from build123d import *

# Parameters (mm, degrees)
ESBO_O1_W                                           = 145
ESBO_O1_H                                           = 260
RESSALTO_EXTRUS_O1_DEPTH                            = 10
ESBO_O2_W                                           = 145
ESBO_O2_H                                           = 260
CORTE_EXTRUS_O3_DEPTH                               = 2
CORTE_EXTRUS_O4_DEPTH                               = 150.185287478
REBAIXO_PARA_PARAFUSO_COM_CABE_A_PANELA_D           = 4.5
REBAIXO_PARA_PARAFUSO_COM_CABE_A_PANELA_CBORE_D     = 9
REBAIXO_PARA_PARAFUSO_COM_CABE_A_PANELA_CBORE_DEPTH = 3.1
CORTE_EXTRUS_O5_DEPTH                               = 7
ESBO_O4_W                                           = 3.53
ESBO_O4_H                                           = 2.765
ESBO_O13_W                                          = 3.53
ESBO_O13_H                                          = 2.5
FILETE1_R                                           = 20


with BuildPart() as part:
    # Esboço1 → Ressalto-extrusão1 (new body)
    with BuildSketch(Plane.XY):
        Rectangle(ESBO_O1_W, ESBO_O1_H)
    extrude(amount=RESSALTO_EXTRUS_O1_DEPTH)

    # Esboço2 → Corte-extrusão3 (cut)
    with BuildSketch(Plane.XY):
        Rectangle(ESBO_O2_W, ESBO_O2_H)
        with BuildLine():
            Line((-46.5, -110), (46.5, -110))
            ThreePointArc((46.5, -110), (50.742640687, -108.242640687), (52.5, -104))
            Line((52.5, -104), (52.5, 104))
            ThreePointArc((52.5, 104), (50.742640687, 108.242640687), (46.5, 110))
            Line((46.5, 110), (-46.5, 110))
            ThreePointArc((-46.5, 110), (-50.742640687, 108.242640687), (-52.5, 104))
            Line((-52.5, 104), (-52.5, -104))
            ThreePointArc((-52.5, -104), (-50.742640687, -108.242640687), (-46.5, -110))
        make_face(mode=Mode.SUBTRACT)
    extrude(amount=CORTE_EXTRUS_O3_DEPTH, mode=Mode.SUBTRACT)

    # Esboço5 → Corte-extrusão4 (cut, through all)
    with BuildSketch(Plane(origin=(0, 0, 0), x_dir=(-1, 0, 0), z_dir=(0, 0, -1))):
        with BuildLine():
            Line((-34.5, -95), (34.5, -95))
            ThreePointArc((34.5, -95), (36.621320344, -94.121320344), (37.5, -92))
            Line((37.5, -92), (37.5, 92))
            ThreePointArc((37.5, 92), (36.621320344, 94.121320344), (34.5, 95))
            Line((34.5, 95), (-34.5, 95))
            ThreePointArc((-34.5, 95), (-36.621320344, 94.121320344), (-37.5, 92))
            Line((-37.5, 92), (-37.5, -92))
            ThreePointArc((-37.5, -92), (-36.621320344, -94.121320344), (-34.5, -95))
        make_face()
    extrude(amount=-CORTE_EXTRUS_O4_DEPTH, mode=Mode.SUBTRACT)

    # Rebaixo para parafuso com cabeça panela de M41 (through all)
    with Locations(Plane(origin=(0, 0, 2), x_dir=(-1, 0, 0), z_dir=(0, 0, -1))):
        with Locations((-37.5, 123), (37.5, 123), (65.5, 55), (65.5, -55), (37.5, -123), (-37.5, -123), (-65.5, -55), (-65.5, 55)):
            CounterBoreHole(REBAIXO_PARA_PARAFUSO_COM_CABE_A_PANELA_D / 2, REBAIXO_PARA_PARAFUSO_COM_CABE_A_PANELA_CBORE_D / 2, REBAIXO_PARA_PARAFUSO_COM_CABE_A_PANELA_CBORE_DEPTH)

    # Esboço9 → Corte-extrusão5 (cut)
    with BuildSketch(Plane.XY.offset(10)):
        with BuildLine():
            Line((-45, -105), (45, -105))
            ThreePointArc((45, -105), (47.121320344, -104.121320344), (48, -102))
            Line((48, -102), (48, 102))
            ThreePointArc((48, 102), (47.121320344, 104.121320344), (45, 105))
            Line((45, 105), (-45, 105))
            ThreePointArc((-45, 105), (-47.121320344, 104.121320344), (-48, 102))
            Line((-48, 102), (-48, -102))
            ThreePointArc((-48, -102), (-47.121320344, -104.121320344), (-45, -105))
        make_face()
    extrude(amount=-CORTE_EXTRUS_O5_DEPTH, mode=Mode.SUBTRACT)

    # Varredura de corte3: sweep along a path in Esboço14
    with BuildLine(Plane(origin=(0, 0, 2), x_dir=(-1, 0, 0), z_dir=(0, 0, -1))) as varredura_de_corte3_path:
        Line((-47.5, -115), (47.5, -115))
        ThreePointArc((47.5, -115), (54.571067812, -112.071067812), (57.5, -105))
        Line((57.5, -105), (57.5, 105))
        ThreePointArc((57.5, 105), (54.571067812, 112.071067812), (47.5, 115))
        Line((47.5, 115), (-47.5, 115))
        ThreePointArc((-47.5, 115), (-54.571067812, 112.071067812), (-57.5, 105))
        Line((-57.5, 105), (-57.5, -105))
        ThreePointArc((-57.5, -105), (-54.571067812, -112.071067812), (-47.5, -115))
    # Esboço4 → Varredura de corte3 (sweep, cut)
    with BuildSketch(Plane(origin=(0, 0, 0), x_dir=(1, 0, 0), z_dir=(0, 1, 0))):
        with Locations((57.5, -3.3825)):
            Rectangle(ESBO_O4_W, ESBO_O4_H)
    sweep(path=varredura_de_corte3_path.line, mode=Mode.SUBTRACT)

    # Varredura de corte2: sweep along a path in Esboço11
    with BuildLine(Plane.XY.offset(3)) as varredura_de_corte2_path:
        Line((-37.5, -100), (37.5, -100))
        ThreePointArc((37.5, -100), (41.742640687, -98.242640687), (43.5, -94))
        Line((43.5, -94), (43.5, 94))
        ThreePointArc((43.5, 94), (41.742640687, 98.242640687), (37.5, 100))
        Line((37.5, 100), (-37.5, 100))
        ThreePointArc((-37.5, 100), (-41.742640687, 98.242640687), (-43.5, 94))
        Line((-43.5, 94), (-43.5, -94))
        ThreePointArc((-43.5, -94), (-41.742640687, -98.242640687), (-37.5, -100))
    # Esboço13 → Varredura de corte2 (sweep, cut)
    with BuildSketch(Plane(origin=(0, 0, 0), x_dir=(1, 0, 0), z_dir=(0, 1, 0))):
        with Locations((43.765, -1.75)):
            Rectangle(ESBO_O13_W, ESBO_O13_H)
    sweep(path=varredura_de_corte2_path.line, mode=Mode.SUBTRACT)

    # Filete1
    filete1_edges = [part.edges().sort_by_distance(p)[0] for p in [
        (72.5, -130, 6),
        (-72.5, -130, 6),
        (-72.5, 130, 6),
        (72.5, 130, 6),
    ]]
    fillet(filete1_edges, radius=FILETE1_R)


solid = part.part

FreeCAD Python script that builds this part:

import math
import FreeCAD as App
import Part
import Sketcher

V = App.Vector


def edges_at(feature, points):
    """Names of the edges that pass closest to the given points."""
    edges = feature.Shape.Edges
    near = lambda p: min(range(len(edges)), key=lambda i: edges[i].distToShape(Part.Vertex(*p))[0])
    return sorted({f"Edge{near(p) + 1}" for p in points})

doc = App.newDocument("Part")
body = doc.addObject("PartDesign::Body", "Body")

# Sketch on XY plane
sketch1 = body.newObject("Sketcher::SketchObject", "Sketch")
sketch1.AttachmentSupport = (doc.getObject("XY_Plane"), [""])
sketch1.MapMode = "FlatFace"
sketch1.addGeometry(Part.LineSegment(V(-72.5, 130, 0), V(-72.5, -130, 0)), False)
sketch1.addGeometry(Part.LineSegment(V(-72.5, -130, 0), V(72.5, -130, 0)), False)
sketch1.addGeometry(Part.LineSegment(V(72.5, -130, 0), V(72.5, 130, 0)), False)
sketch1.addGeometry(Part.LineSegment(V(72.5, 130, 0), V(-72.5, 130, 0)), False)
sketch1.addConstraint(Sketcher.Constraint("Coincident", 0, 2, 1, 1))
sketch1.addConstraint(Sketcher.Constraint("Coincident", 1, 2, 2, 1))
sketch1.addConstraint(Sketcher.Constraint("Coincident", 2, 2, 3, 1))
sketch1.addConstraint(Sketcher.Constraint("Coincident", 3, 2, 0, 1))
sketch1.addConstraint(Sketcher.Constraint("Vertical", 0))
sketch1.addConstraint(Sketcher.Constraint("Horizontal", 1))
sketch1.addConstraint(Sketcher.Constraint("Vertical", 2))
sketch1.addConstraint(Sketcher.Constraint("Horizontal", 3))
sketch1.addConstraint(Sketcher.Constraint("Symmetric", 0, 2, 2, 2, -1, 1))
sketch1.addConstraint(Sketcher.Constraint("DistanceX", 1, 1, 1, 2, 145.0))
sketch1.addConstraint(Sketcher.Constraint("DistanceY", 0, 2, 0, 1, 260.0))
pad1 = body.newObject("PartDesign::Pad", "Pad")
pad1.Profile = sketch1
pad1.Length = 10

# Sketch on XY plane
sketch2 = body.newObject("Sketcher::SketchObject", "Sketch001")
sketch2.AttachmentSupport = (doc.getObject("XY_Plane"), [""])
sketch2.MapMode = "FlatFace"
sketch2.addGeometry(Part.LineSegment(V(-72.5, 130, 0), V(-72.5, -130, 0)), False)
sketch2.addGeometry(Part.LineSegment(V(-72.5, -130, 0), V(72.5, -130, 0)), False)
sketch2.addGeometry(Part.LineSegment(V(72.5, -130, 0), V(72.5, 130, 0)), False)
sketch2.addGeometry(Part.LineSegment(V(72.5, 130, 0), V(-72.5, 130, 0)), False)
sketch2.addGeometry(Part.LineSegment(V(46.5, -110, 0), V(-46.5, -110, 0)), False)
sketch2.addGeometry(Part.ArcOfCircle(Part.Circle(V(-46.5, -104, 0), V(0, 0, 1), 6), math.radians(180), math.radians(270)), False)
sketch2.addGeometry(Part.LineSegment(V(-52.5, -104, 0), V(-52.5, 104, 0)), False)
sketch2.addGeometry(Part.ArcOfCircle(Part.Circle(V(-46.5, 104, 0), V(0, 0, 1), 6), math.radians(90), math.radians(180)), False)
sketch2.addGeometry(Part.LineSegment(V(-46.5, 110, 0), V(46.5, 110, 0)), False)
sketch2.addGeometry(Part.ArcOfCircle(Part.Circle(V(46.5, 104, 0), V(0, 0, 1), 6), math.radians(0), math.radians(90)), False)
sketch2.addGeometry(Part.LineSegment(V(52.5, 104, 0), V(52.5, -104, 0)), False)
sketch2.addGeometry(Part.ArcOfCircle(Part.Circle(V(46.5, -104, 0), V(0, 0, 1), 6), math.radians(-90), math.radians(0)), False)
sketch2.addConstraint(Sketcher.Constraint("Coincident", 0, 2, 1, 1))
sketch2.addConstraint(Sketcher.Constraint("Coincident", 1, 2, 2, 1))
sketch2.addConstraint(Sketcher.Constraint("Coincident", 2, 2, 3, 1))
sketch2.addConstraint(Sketcher.Constraint("Coincident", 3, 2, 0, 1))
sketch2.addConstraint(Sketcher.Constraint("Tangent", 4, 2, 5, 2))
sketch2.addConstraint(Sketcher.Constraint("Tangent", 5, 1, 6, 1))
sketch2.addConstraint(Sketcher.Constraint("Tangent", 6, 2, 7, 2))
sketch2.addConstraint(Sketcher.Constraint("Tangent", 7, 1, 8, 1))
sketch2.addConstraint(Sketcher.Constraint("Tangent", 8, 2, 9, 2))
sketch2.addConstraint(Sketcher.Constraint("Tangent", 9, 1, 10, 1))
sketch2.addConstraint(Sketcher.Constraint("Tangent", 10, 2, 11, 2))
sketch2.addConstraint(Sketcher.Constraint("Tangent", 11, 1, 4, 1))
sketch2.addConstraint(Sketcher.Constraint("Vertical", 0))
sketch2.addConstraint(Sketcher.Constraint("Horizontal", 1))
sketch2.addConstraint(Sketcher.Constraint("Vertical", 2))
sketch2.addConstraint(Sketcher.Constraint("Horizontal", 3))
sketch2.addConstraint(Sketcher.Constraint("Horizontal", 4))
sketch2.addConstraint(Sketcher.Constraint("Vertical", 6))
sketch2.addConstraint(Sketcher.Constraint("Horizontal", 8))
sketch2.addConstraint(Sketcher.Constraint("Vertical", 10))
sketch2.addConstraint(Sketcher.Constraint("Equal", 5, 7))
sketch2.addConstraint(Sketcher.Constraint("Equal", 7, 9))
sketch2.addConstraint(Sketcher.Constraint("Equal", 9, 11))
sketch2.addConstraint(Sketcher.Constraint("Symmetric", 5, 3, 9, 3, -1, 1))
sketch2.addConstraint(Sketcher.Constraint("Symmetric", 0, 2, 2, 2, -1, 1))
sketch2.addConstraint(Sketcher.Constraint("Radius", 5, 6.0))
sketch2.addConstraint(Sketcher.Constraint("DistanceX", 1, 1, 1, 2, 145.0))
sketch2.addConstraint(Sketcher.Constraint("DistanceX", 4, 2, 4, 1, 93.0))
sketch2.addConstraint(Sketcher.Constraint("DistanceY", 0, 2, 0, 1, 260.0))
sketch2.addConstraint(Sketcher.Constraint("DistanceY", 6, 1, 6, 2, 208.0))
pocket1 = body.newObject("PartDesign::Pocket", "Pocket")
pocket1.Profile = sketch2
pocket1.Length = 2
pocket1.Reversed = True

# Sketch on XY plane
sketch3 = body.newObject("Sketcher::SketchObject", "Sketch002")
sketch3.AttachmentSupport = (doc.getObject("XY_Plane"), [""])
sketch3.MapMode = "FlatFace"
sketch3.addGeometry(Part.LineSegment(V(34.5, -95, 0), V(-34.5, -95, 0)), False)
sketch3.addGeometry(Part.ArcOfCircle(Part.Circle(V(-34.5, -92, 0), V(0, 0, 1), 3), math.radians(180), math.radians(270)), False)
sketch3.addGeometry(Part.LineSegment(V(-37.5, -92, 0), V(-37.5, 92, 0)), False)
sketch3.addGeometry(Part.ArcOfCircle(Part.Circle(V(-34.5, 92, 0), V(0, 0, 1), 3), math.radians(90), math.radians(180)), False)
sketch3.addGeometry(Part.LineSegment(V(-34.5, 95, 0), V(34.5, 95, 0)), False)
sketch3.addGeometry(Part.ArcOfCircle(Part.Circle(V(34.5, 92, 0), V(0, 0, 1), 3), math.radians(0), math.radians(90)), False)
sketch3.addGeometry(Part.LineSegment(V(37.5, 92, 0), V(37.5, -92, 0)), False)
sketch3.addGeometry(Part.ArcOfCircle(Part.Circle(V(34.5, -92, 0), V(0, 0, 1), 3), math.radians(-90), math.radians(0)), False)
sketch3.addConstraint(Sketcher.Constraint("Tangent", 0, 2, 1, 2))
sketch3.addConstraint(Sketcher.Constraint("Tangent", 1, 1, 2, 1))
sketch3.addConstraint(Sketcher.Constraint("Tangent", 2, 2, 3, 2))
sketch3.addConstraint(Sketcher.Constraint("Tangent", 3, 1, 4, 1))
sketch3.addConstraint(Sketcher.Constraint("Tangent", 4, 2, 5, 2))
sketch3.addConstraint(Sketcher.Constraint("Tangent", 5, 1, 6, 1))
sketch3.addConstraint(Sketcher.Constraint("Tangent", 6, 2, 7, 2))
sketch3.addConstraint(Sketcher.Constraint("Tangent", 7, 1, 0, 1))
sketch3.addConstraint(Sketcher.Constraint("Horizontal", 0))
sketch3.addConstraint(Sketcher.Constraint("Vertical", 2))
sketch3.addConstraint(Sketcher.Constraint("Horizontal", 4))
sketch3.addConstraint(Sketcher.Constraint("Vertical", 6))
sketch3.addConstraint(Sketcher.Constraint("Equal", 1, 3))
sketch3.addConstraint(Sketcher.Constraint("Equal", 3, 5))
sketch3.addConstraint(Sketcher.Constraint("Equal", 5, 7))
sketch3.addConstraint(Sketcher.Constraint("Symmetric", 1, 3, 5, 3, -1, 1))
sketch3.addConstraint(Sketcher.Constraint("Radius", 1, 3.0))
sketch3.addConstraint(Sketcher.Constraint("DistanceX", 0, 2, 0, 1, 69.0))
sketch3.addConstraint(Sketcher.Constraint("DistanceY", 2, 1, 2, 2, 184.0))
pocket2 = body.newObject("PartDesign::Pocket", "Pocket001")
pocket2.Profile = sketch3
pocket2.Type = "ThroughAll"
pocket2.Reversed = True

# Sketch on XY plane
sketch4 = body.newObject("Sketcher::SketchObject", "Sketch003")
sketch4.AttachmentSupport = (doc.getObject("XY_Plane"), [""])
sketch4.MapMode = "FlatFace"
sketch4.AttachmentOffset = App.Placement(V(0, 0, 2), App.Rotation())
sketch4.addGeometry(Part.Circle(V(37.5, 123, 0), V(0, 0, 1), 2.25), False)
sketch4.addGeometry(Part.Circle(V(-37.5, 123, 0), V(0, 0, 1), 2.25), False)
sketch4.addGeometry(Part.Circle(V(-65.5, 55, 0), V(0, 0, 1), 2.25), False)
sketch4.addGeometry(Part.Circle(V(-65.5, -55, 0), V(0, 0, 1), 2.25), False)
sketch4.addGeometry(Part.Circle(V(-37.5, -123, 0), V(0, 0, 1), 2.25), False)
sketch4.addGeometry(Part.Circle(V(37.5, -123, 0), V(0, 0, 1), 2.25), False)
sketch4.addGeometry(Part.Circle(V(65.5, -55, 0), V(0, 0, 1), 2.25), False)
sketch4.addGeometry(Part.Circle(V(65.5, 55, 0), V(0, 0, 1), 2.25), False)
sketch4.addConstraint(Sketcher.Constraint("Equal", 0, 1))
sketch4.addConstraint(Sketcher.Constraint("Equal", 1, 2))
sketch4.addConstraint(Sketcher.Constraint("Equal", 2, 3))
sketch4.addConstraint(Sketcher.Constraint("Equal", 3, 4))
sketch4.addConstraint(Sketcher.Constraint("Equal", 4, 5))
sketch4.addConstraint(Sketcher.Constraint("Equal", 5, 6))
sketch4.addConstraint(Sketcher.Constraint("Equal", 6, 7))
sketch4.addConstraint(Sketcher.Constraint("Symmetric", 0, 3, 4, 3, -1, 1))
sketch4.addConstraint(Sketcher.Constraint("Symmetric", 1, 3, 5, 3, -1, 1))
sketch4.addConstraint(Sketcher.Constraint("Symmetric", 2, 3, 6, 3, -1, 1))
sketch4.addConstraint(Sketcher.Constraint("Symmetric", 3, 3, 7, 3, -1, 1))
sketch4.addConstraint(Sketcher.Constraint("Symmetric", 0, 3, 1, 3, -2))
sketch4.addConstraint(Sketcher.Constraint("Symmetric", 3, 3, 6, 3, -2))
sketch4.addConstraint(Sketcher.Constraint("Diameter", 0, 4.5))
sketch4.addConstraint(Sketcher.Constraint("DistanceY", -1, 1, 0, 3, 123.0))
sketch4.addConstraint(Sketcher.Constraint("DistanceY", -1, 1, 2, 3, 55.0))
sketch4.addConstraint(Sketcher.Constraint("DistanceX", 1, 3, 0, 3, 75.0))
sketch4.addConstraint(Sketcher.Constraint("DistanceX", 2, 3, 1, 3, 28.0))
doc.recompute()
hole = body.newObject("PartDesign::Hole", "Hole")
hole.Profile = sketch4
hole.ThreadType = "None"
hole.Diameter = 4.5
hole.DepthType = "ThroughAll"
hole.HoleCutType = "Counterbore"
hole.HoleCutDiameter = 9
hole.HoleCutDepth = 3.1
hole.Reversed = True

# Sketch on XY plane
sketch5 = body.newObject("Sketcher::SketchObject", "Sketch004")
sketch5.AttachmentSupport = (doc.getObject("XY_Plane"), [""])
sketch5.MapMode = "FlatFace"
sketch5.AttachmentOffset = App.Placement(V(0, 0, 10), App.Rotation())
sketch5.addGeometry(Part.LineSegment(V(-45, -105, 0), V(45, -105, 0)), False)
sketch5.addGeometry(Part.ArcOfCircle(Part.Circle(V(45, -102, 0), V(0, 0, 1), 3), math.radians(-90), math.radians(0)), False)
sketch5.addGeometry(Part.LineSegment(V(48, -102, 0), V(48, 102, 0)), False)
sketch5.addGeometry(Part.ArcOfCircle(Part.Circle(V(45, 102, 0), V(0, 0, 1), 3), math.radians(0), math.radians(90)), False)
sketch5.addGeometry(Part.LineSegment(V(45, 105, 0), V(-45, 105, 0)), False)
sketch5.addGeometry(Part.ArcOfCircle(Part.Circle(V(-45, 102, 0), V(0, 0, 1), 3), math.radians(90), math.radians(180)), False)
sketch5.addGeometry(Part.LineSegment(V(-48, 102, 0), V(-48, -102, 0)), False)
sketch5.addGeometry(Part.ArcOfCircle(Part.Circle(V(-45, -102, 0), V(0, 0, 1), 3), math.radians(180), math.radians(270)), False)
sketch5.addConstraint(Sketcher.Constraint("Tangent", 0, 2, 1, 1))
sketch5.addConstraint(Sketcher.Constraint("Tangent", 1, 2, 2, 1))
sketch5.addConstraint(Sketcher.Constraint("Tangent", 2, 2, 3, 1))
sketch5.addConstraint(Sketcher.Constraint("Tangent", 3, 2, 4, 1))
sketch5.addConstraint(Sketcher.Constraint("Tangent", 4, 2, 5, 1))
sketch5.addConstraint(Sketcher.Constraint("Tangent", 5, 2, 6, 1))
sketch5.addConstraint(Sketcher.Constraint("Tangent", 6, 2, 7, 1))
sketch5.addConstraint(Sketcher.Constraint("Tangent", 7, 2, 0, 1))
sketch5.addConstraint(Sketcher.Constraint("Horizontal", 0))
sketch5.addConstraint(Sketcher.Constraint("Vertical", 2))
sketch5.addConstraint(Sketcher.Constraint("Horizontal", 4))
sketch5.addConstraint(Sketcher.Constraint("Vertical", 6))
sketch5.addConstraint(Sketcher.Constraint("Equal", 1, 3))
sketch5.addConstraint(Sketcher.Constraint("Equal", 3, 5))
sketch5.addConstraint(Sketcher.Constraint("Equal", 5, 7))
sketch5.addConstraint(Sketcher.Constraint("Symmetric", 1, 3, 5, 3, -1, 1))
sketch5.addConstraint(Sketcher.Constraint("Radius", 1, 3.0))
sketch5.addConstraint(Sketcher.Constraint("DistanceX", 0, 1, 0, 2, 90.0))
sketch5.addConstraint(Sketcher.Constraint("DistanceY", 2, 1, 2, 2, 204.0))
pocket3 = body.newObject("PartDesign::Pocket", "Pocket002")
pocket3.Profile = sketch5
pocket3.Length = 7

# Sketch on XZ plane
sketch6 = body.newObject("Sketcher::SketchObject", "Sketch005")
sketch6.AttachmentSupport = (doc.getObject("XZ_Plane"), [""])
sketch6.MapMode = "FlatFace"
sketch6.addGeometry(Part.LineSegment(V(55.735, 2, 0), V(55.735, 4.765, 0)), False)
sketch6.addGeometry(Part.LineSegment(V(55.735, 4.765, 0), V(59.265, 4.765, 0)), False)
sketch6.addGeometry(Part.LineSegment(V(59.265, 4.765, 0), V(59.265, 2, 0)), False)
sketch6.addGeometry(Part.LineSegment(V(59.265, 2, 0), V(55.735, 2, 0)), False)
sketch6.addConstraint(Sketcher.Constraint("Coincident", 0, 2, 1, 1))
sketch6.addConstraint(Sketcher.Constraint("Coincident", 1, 2, 2, 1))
sketch6.addConstraint(Sketcher.Constraint("Coincident", 2, 2, 3, 1))
sketch6.addConstraint(Sketcher.Constraint("Coincident", 3, 2, 0, 1))
sketch6.addConstraint(Sketcher.Constraint("Vertical", 0))
sketch6.addConstraint(Sketcher.Constraint("Horizontal", 1))
sketch6.addConstraint(Sketcher.Constraint("Vertical", 2))
sketch6.addConstraint(Sketcher.Constraint("Horizontal", 3))
sketch6.addConstraint(Sketcher.Constraint("DistanceY", -1, 1, 2, 2, 2.0))
sketch6.addConstraint(Sketcher.Constraint("DistanceX", 1, 1, 1, 2, 3.53))
sketch6.addConstraint(Sketcher.Constraint("DistanceY", 0, 1, 0, 2, 2.765))
sketch6.addConstraint(Sketcher.Constraint("DistanceX", -1, 1, 0, 2, 55.735))

# Sketch on XY plane
sketch7 = body.newObject("Sketcher::SketchObject", "Sketch006")
sketch7.AttachmentSupport = (doc.getObject("XY_Plane"), [""])
sketch7.MapMode = "FlatFace"
sketch7.AttachmentOffset = App.Placement(V(0, 0, 2), App.Rotation())
sketch7.addGeometry(Part.LineSegment(V(47.5, -115, 0), V(-47.5, -115, 0)), False)
sketch7.addGeometry(Part.ArcOfCircle(Part.Circle(V(-47.5, -105, 0), V(0, 0, 1), 10), math.radians(180), math.radians(270)), False)
sketch7.addGeometry(Part.LineSegment(V(-57.5, -105, 0), V(-57.5, 105, 0)), False)
sketch7.addGeometry(Part.ArcOfCircle(Part.Circle(V(-47.5, 105, 0), V(0, 0, 1), 10), math.radians(90), math.radians(180)), False)
sketch7.addGeometry(Part.LineSegment(V(-47.5, 115, 0), V(47.5, 115, 0)), False)
sketch7.addGeometry(Part.ArcOfCircle(Part.Circle(V(47.5, 105, 0), V(0, 0, 1), 10), math.radians(0), math.radians(90)), False)
sketch7.addGeometry(Part.LineSegment(V(57.5, 105, 0), V(57.5, -105, 0)), False)
sketch7.addGeometry(Part.ArcOfCircle(Part.Circle(V(47.5, -105, 0), V(0, 0, 1), 10), math.radians(-90), math.radians(0)), False)
sketch7.addConstraint(Sketcher.Constraint("Tangent", 0, 2, 1, 2))
sketch7.addConstraint(Sketcher.Constraint("Tangent", 1, 1, 2, 1))
sketch7.addConstraint(Sketcher.Constraint("Tangent", 2, 2, 3, 2))
sketch7.addConstraint(Sketcher.Constraint("Tangent", 3, 1, 4, 1))
sketch7.addConstraint(Sketcher.Constraint("Tangent", 4, 2, 5, 2))
sketch7.addConstraint(Sketcher.Constraint("Tangent", 5, 1, 6, 1))
sketch7.addConstraint(Sketcher.Constraint("Tangent", 6, 2, 7, 2))
sketch7.addConstraint(Sketcher.Constraint("Tangent", 7, 1, 0, 1))
sketch7.addConstraint(Sketcher.Constraint("Horizontal", 0))
sketch7.addConstraint(Sketcher.Constraint("Vertical", 2))
sketch7.addConstraint(Sketcher.Constraint("Horizontal", 4))
sketch7.addConstraint(Sketcher.Constraint("Vertical", 6))
sketch7.addConstraint(Sketcher.Constraint("Equal", 1, 3))
sketch7.addConstraint(Sketcher.Constraint("Equal", 3, 5))
sketch7.addConstraint(Sketcher.Constraint("Equal", 5, 7))
sketch7.addConstraint(Sketcher.Constraint("Symmetric", 1, 3, 5, 3, -1, 1))
sketch7.addConstraint(Sketcher.Constraint("Radius", 1, 10.0))
sketch7.addConstraint(Sketcher.Constraint("DistanceX", 0, 2, 0, 1, 95.0))
sketch7.addConstraint(Sketcher.Constraint("DistanceY", 2, 1, 2, 2, 210.0))
doc.recompute()

subtractivepipe = body.newObject("PartDesign::SubtractivePipe", "SubtractivePipe")
subtractivepipe.Profile = sketch6
subtractivepipe.Spine = (sketch7, ["Edge1", "Edge2", "Edge3", "Edge4", "Edge5", "Edge6", "Edge7", "Edge8"])

# Sketch on XZ plane
sketch8 = body.newObject("Sketcher::SketchObject", "Sketch007")
sketch8.AttachmentSupport = (doc.getObject("XZ_Plane"), [""])
sketch8.MapMode = "FlatFace"
sketch8.addGeometry(Part.LineSegment(V(42, 0.5, 0), V(42, 3, 0)), False)
sketch8.addGeometry(Part.LineSegment(V(42, 3, 0), V(45.53, 3, 0)), False)
sketch8.addGeometry(Part.LineSegment(V(45.53, 3, 0), V(45.53, 0.5, 0)), False)
sketch8.addGeometry(Part.LineSegment(V(45.53, 0.5, 0), V(42, 0.5, 0)), False)
sketch8.addConstraint(Sketcher.Constraint("Coincident", 0, 2, 1, 1))
sketch8.addConstraint(Sketcher.Constraint("Coincident", 1, 2, 2, 1))
sketch8.addConstraint(Sketcher.Constraint("Coincident", 2, 2, 3, 1))
sketch8.addConstraint(Sketcher.Constraint("Coincident", 3, 2, 0, 1))
sketch8.addConstraint(Sketcher.Constraint("Vertical", 0))
sketch8.addConstraint(Sketcher.Constraint("Horizontal", 1))
sketch8.addConstraint(Sketcher.Constraint("Vertical", 2))
sketch8.addConstraint(Sketcher.Constraint("Horizontal", 3))
sketch8.addConstraint(Sketcher.Constraint("DistanceY", 0, 1, 0, 2, 2.5))
sketch8.addConstraint(Sketcher.Constraint("DistanceX", -1, 1, 0, 2, 42.0))
sketch8.addConstraint(Sketcher.Constraint("DistanceY", -1, 1, 0, 2, 3.0))
sketch8.addConstraint(Sketcher.Constraint("DistanceX", 1, 1, 1, 2, 3.53))

# Sketch on XY plane
sketch9 = body.newObject("Sketcher::SketchObject", "Sketch008")
sketch9.AttachmentSupport = (doc.getObject("XY_Plane"), [""])
sketch9.MapMode = "FlatFace"
sketch9.AttachmentOffset = App.Placement(V(0, 0, 3), App.Rotation())
sketch9.addGeometry(Part.LineSegment(V(-37.5, -100, 0), V(37.5, -100, 0)), False)
sketch9.addGeometry(Part.ArcOfCircle(Part.Circle(V(37.5, -94, 0), V(0, 0, 1), 6), math.radians(-90), math.radians(0)), False)
sketch9.addGeometry(Part.LineSegment(V(43.5, -94, 0), V(43.5, 94, 0)), False)
sketch9.addGeometry(Part.ArcOfCircle(Part.Circle(V(37.5, 94, 0), V(0, 0, 1), 6), math.radians(0), math.radians(90)), False)
sketch9.addGeometry(Part.LineSegment(V(37.5, 100, 0), V(-37.5, 100, 0)), False)
sketch9.addGeometry(Part.ArcOfCircle(Part.Circle(V(-37.5, 94, 0), V(0, 0, 1), 6), math.radians(90), math.radians(180)), False)
sketch9.addGeometry(Part.LineSegment(V(-43.5, 94, 0), V(-43.5, -94, 0)), False)
sketch9.addGeometry(Part.ArcOfCircle(Part.Circle(V(-37.5, -94, 0), V(0, 0, 1), 6), math.radians(180), math.radians(270)), False)
sketch9.addConstraint(Sketcher.Constraint("Tangent", 0, 2, 1, 1))
sketch9.addConstraint(Sketcher.Constraint("Tangent", 1, 2, 2, 1))
sketch9.addConstraint(Sketcher.Constraint("Tangent", 2, 2, 3, 1))
sketch9.addConstraint(Sketcher.Constraint("Tangent", 3, 2, 4, 1))
sketch9.addConstraint(Sketcher.Constraint("Tangent", 4, 2, 5, 1))
sketch9.addConstraint(Sketcher.Constraint("Tangent", 5, 2, 6, 1))
sketch9.addConstraint(Sketcher.Constraint("Tangent", 6, 2, 7, 1))
sketch9.addConstraint(Sketcher.Constraint("Tangent", 7, 2, 0, 1))
sketch9.addConstraint(Sketcher.Constraint("Horizontal", 0))
sketch9.addConstraint(Sketcher.Constraint("Vertical", 2))
sketch9.addConstraint(Sketcher.Constraint("Horizontal", 4))
sketch9.addConstraint(Sketcher.Constraint("Vertical", 6))
sketch9.addConstraint(Sketcher.Constraint("Equal", 1, 3))
sketch9.addConstraint(Sketcher.Constraint("Equal", 3, 5))
sketch9.addConstraint(Sketcher.Constraint("Equal", 5, 7))
sketch9.addConstraint(Sketcher.Constraint("Symmetric", 1, 3, 5, 3, -1, 1))
sketch9.addConstraint(Sketcher.Constraint("Radius", 1, 6.0))
sketch9.addConstraint(Sketcher.Constraint("DistanceX", 0, 1, 0, 2, 75.0))
sketch9.addConstraint(Sketcher.Constraint("DistanceY", 2, 1, 2, 2, 188.0))
doc.recompute()

subtractivepipe2 = body.newObject("PartDesign::SubtractivePipe", "SubtractivePipe001")
subtractivepipe2.Profile = sketch8
subtractivepipe2.Spine = (sketch9, ["Edge1", "Edge2", "Edge3", "Edge4", "Edge5", "Edge6", "Edge7", "Edge8"])
doc.recompute()

fillet = body.newObject("PartDesign::Fillet", "Fillet")
fillet.Base = (subtractivepipe2, edges_at(subtractivepipe2, [
    (72.5, -130, 6),
    (-72.5, -130, 6),
    (-72.5, 130, 6),
    (72.5, 130, 6),
]))
fillet.Radius = 20

doc.recompute()
